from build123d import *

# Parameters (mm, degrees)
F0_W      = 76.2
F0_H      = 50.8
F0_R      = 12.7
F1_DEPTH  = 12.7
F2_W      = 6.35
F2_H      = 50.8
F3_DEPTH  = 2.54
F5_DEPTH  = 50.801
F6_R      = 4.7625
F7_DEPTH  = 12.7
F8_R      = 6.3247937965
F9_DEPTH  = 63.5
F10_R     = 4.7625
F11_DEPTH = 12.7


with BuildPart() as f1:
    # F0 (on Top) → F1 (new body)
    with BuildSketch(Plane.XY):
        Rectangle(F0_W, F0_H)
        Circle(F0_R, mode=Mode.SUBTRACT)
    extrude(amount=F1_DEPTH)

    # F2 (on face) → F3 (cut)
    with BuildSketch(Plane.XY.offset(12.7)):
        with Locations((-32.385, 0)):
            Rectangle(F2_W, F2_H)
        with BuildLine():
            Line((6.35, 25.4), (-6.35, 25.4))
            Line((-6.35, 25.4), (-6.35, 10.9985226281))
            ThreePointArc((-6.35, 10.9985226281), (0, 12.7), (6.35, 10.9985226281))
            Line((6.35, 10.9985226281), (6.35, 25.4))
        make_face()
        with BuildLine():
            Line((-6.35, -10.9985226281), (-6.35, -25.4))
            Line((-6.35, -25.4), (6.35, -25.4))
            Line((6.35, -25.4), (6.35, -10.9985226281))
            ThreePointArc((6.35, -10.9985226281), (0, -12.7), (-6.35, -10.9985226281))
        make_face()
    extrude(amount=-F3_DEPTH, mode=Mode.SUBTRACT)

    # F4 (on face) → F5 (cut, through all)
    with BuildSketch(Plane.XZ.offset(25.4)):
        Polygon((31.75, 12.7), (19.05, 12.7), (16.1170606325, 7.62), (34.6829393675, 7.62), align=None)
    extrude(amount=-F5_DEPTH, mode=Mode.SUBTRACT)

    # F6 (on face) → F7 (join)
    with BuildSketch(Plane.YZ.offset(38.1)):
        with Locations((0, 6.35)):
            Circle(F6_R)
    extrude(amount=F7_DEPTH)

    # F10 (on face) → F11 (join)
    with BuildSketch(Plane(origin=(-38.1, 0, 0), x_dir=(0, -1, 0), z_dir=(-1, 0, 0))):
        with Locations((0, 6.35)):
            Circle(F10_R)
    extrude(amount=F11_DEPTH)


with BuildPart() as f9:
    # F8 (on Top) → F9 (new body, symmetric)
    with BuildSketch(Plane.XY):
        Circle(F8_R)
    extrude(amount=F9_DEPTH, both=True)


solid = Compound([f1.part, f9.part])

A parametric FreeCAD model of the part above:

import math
import FreeCAD as App
import Part
import Sketcher
Q = App.Units.Quantity

doc = App.newDocument("Part")
body = doc.addObject("PartDesign::Body", "Body")

# Sketch on XY plane
sketch1 = doc.addObject("Sketcher::SketchObject", "Sketch")
body.addObject(sketch1)
sketch1.AttachmentSupport = (doc.XY_Plane, [""])
sketch1.MapMode = "FlatFace"
sketch1.addGeometry([
    Part.LineSegment(App.Vector(-38, 25, 0), App.Vector(-38, -25, 0)),  # 0
    Part.LineSegment(App.Vector(-38, -25, 0), App.Vector(38, -25, 0)),  # 1
    Part.LineSegment(App.Vector(38, -25, 0), App.Vector(38, 25, 0)),  # 2
    Part.LineSegment(App.Vector(38, 25, 0), App.Vector(-38, 25, 0)),  # 3
    Part.Circle(App.Vector(0, 0, 0), App.Vector(0, 0, 1), 13),  # 4
], False)
sketch1.addConstraint([
    Sketcher.Constraint("Coincident", 0, 2, 1, 1),
    Sketcher.Constraint("Coincident", 1, 2, 2, 1),
    Sketcher.Constraint("Coincident", 2, 2, 3, 1),
    Sketcher.Constraint("Coincident", 3, 2, 0, 1),
    Sketcher.Constraint("Vertical", 0),
    Sketcher.Constraint("Horizontal", 1),
    Sketcher.Constraint("Vertical", 2),
    Sketcher.Constraint("Horizontal", 3),
    Sketcher.Constraint("Coincident", 4, 3, -1, 1),
    Sketcher.Constraint("Symmetric", 0, 2, 2, 2, -1, 1),
    Sketcher.Constraint("Diameter", 4, Q("1 in")),
    Sketcher.Constraint("DistanceX", 1, 1, 1, 2, Q("3 in")),
    Sketcher.Constraint("DistanceY", 0, 2, 0, 1, Q("2 in")),
])
pad1 = doc.addObject("PartDesign::Pad", "Pad")
body.addObject(pad1)
pad1.Profile = sketch1
pad1.Length = Q("0.5 in")

# Sketch on XY plane
sketch2 = doc.addObject("Sketcher::SketchObject", "Sketch001")
body.addObject(sketch2)
sketch2.AttachmentSupport = (doc.XY_Plane, [""])
sketch2.MapMode = "FlatFace"
sketch2.AttachmentOffset = App.Placement(App.Vector(0, 0, 0.5 * 25.4), App.Rotation())
sketch2.addGeometry([
    Part.LineSegment(App.Vector(-36, 25, 0), App.Vector(-36, -25, 0)),  # 0
    Part.LineSegment(App.Vector(-36, -25, 0), App.Vector(-29, -25, 0)),  # 1
    Part.LineSegment(App.Vector(-29, -25, 0), App.Vector(-29, 25, 0)),  # 2
    Part.LineSegment(App.Vector(-29, 25, 0), App.Vector(-36, 25, 0)),  # 3
    Part.LineSegment(App.Vector(6, 25, 0), App.Vector(-6, 25, 0)),  # 4
    Part.LineSegment(App.Vector(-6, 25, 0), App.Vector(-6, 11, 0)),  # 5
    Part.ArcOfCircle(Part.Circle(App.Vector(0, 0, 0), App.Vector(0, 0, 1), 13), math.radians(60), math.radians(120)),  # 6
    Part.LineSegment(App.Vector(6, 11, 0), App.Vector(6, 25, 0)),  # 7
    Part.LineSegment(App.Vector(-6, -11, 0), App.Vector(-6, -25, 0)),  # 8
    Part.LineSegment(App.Vector(-6, -25, 0), App.Vector(6, -25, 0)),  # 9
    Part.LineSegment(App.Vector(6, -25, 0), App.Vector(6, -11, 0)),  # 10
    Part.ArcOfCircle(Part.Circle(App.Vector(0, 0, 0), App.Vector(0, 0, 1), 13), math.radians(-120), math.radians(-60)),  # 11
], False)
sketch2.addConstraint([
    Sketcher.Constraint("Coincident", 0, 2, 1, 1),
    Sketcher.Constraint("Coincident", 1, 2, 2, 1),
    Sketcher.Constraint("Coincident", 2, 2, 3, 1),
    Sketcher.Constraint("Coincident", 3, 2, 0, 1),
    Sketcher.Constraint("Coincident", 4, 2, 5, 1),
    Sketcher.Constraint("Coincident", 5, 2, 6, 2),
    Sketcher.Constraint("Coincident", 6, 1, 7, 1),
    Sketcher.Constraint("Coincident", 7, 2, 4, 1),
    Sketcher.Constraint("Coincident", 8, 2, 9, 1),
    Sketcher.Constraint("Coincident", 9, 2, 10, 1),
    Sketcher.Constraint("Coincident", 10, 2, 11, 2),
    Sketcher.Constraint("Coincident", 11, 1, 8, 1),
    Sketcher.Constraint("Vertical", 0),
    Sketcher.Constraint("Horizontal", 1),
    Sketcher.Constraint("Vertical", 2),
    Sketcher.Constraint("Horizontal", 3),
    Sketcher.Constraint("Horizontal", 4),
    Sketcher.Constraint("Vertical", 5),
    Sketcher.Constraint("Vertical", 7),
    Sketcher.Constraint("Vertical", 8),
    Sketcher.Constraint("Horizontal", 9),
    Sketcher.Constraint("Vertical", 10),
    Sketcher.Constraint("Coincident", 6, 3, -1, 1),
    Sketcher.Constraint("Coincident", 11, 3, -1, 1),
    Sketcher.Constraint("Equal", 6, 11),
    Sketcher.Constraint("Symmetric", 7, 2, 8, 2, -1, 1),
    Sketcher.Constraint("Horizontal", 3, 2, 4, 2),
    Sketcher.Constraint("Horizontal", 5, 2, 6, 1),
    Sketcher.Constraint("Horizontal", 1, 2, 8, 2),
    Sketcher.Constraint("Horizontal", 10, 2, 11, 1),
    Sketcher.Constraint("Radius", 6, Q("0.5 in")),
    Sketcher.Constraint("DistanceY", 0, 2, 0, 1, Q("2 in")),
    Sketcher.Constraint("DistanceX", 4, 2, 4, 1, Q("0.5 in")),
    Sketcher.Constraint("DistanceX", 1, 1, 1, 2, Q("0.25 in")),
    Sketcher.Constraint("DistanceX", 0, 2, -1, 1, Q("1.4 in")),
])
pocket1 = doc.addObject("PartDesign::Pocket", "Pocket")
body.addObject(pocket1)
pocket1.Profile = sketch2
pocket1.Length = Q("0.1 in")

# Sketch on XZ plane
sketch3 = doc.addObject("Sketcher::SketchObject", "Sketch002")
body.addObject(sketch3)
sketch3.AttachmentSupport = (doc.XZ_Plane, [""])
sketch3.MapMode = "FlatFace"
sketch3.AttachmentOffset = App.Placement(App.Vector(0, 0, 1 * 25.4), App.Rotation())
sketch3.addGeometry([
    Part.LineSegment(App.Vector(32, 13, 0), App.Vector(19, 13, 0)),
    Part.LineSegment(App.Vector(19, 13, 0), App.Vector(16, 8, 0)),
    Part.LineSegment(App.Vector(16, 8, 0), App.Vector(35, 8, 0)),
    Part.LineSegment(App.Vector(35, 8, 0), App.Vector(32, 13, 0)),
], False)
sketch3.addConstraint([
    Sketcher.Constraint("Coincident", 0, 2, 1, 1),
    Sketcher.Constraint("Coincident", 1, 2, 2, 1),
    Sketcher.Constraint("Coincident", 2, 2, 3, 1),
    Sketcher.Constraint("Coincident", 3, 2, 0, 1),
    Sketcher.Constraint("Horizontal", 0),
    Sketcher.Constraint("Horizontal", 2),
    Sketcher.Constraint("Equal", 1, 3),
    Sketcher.Constraint("DistanceX", 0, 2, 0, 1, Q("0.5 in")),
    Sketcher.Constraint("Angle", 1, Q("-120 deg")),
    Sketcher.Constraint("DistanceY", -1, 1, 0, 2, Q("0.5 in")),
    Sketcher.Constraint("DistanceY", -1, 1, 1, 2, Q("0.3 in")),
    Sketcher.Constraint("DistanceX", -1, 1, 0, 2, Q("0.75 in")),
])
pocket2 = doc.addObject("PartDesign::Pocket", "Pocket001")
body.addObject(pocket2)
pocket2.Profile = sketch3
pocket2.Type = "ThroughAll"

# Sketch on YZ plane
sketch4 = doc.addObject("Sketcher::SketchObject", "Sketch003")
body.addObject(sketch4)
sketch4.AttachmentSupport = (doc.YZ_Plane, [""])
sketch4.MapMode = "FlatFace"
sketch4.AttachmentOffset = App.Placement(App.Vector(0, 0, 1.5 * 25.4), App.Rotation())
sketch4.addGeometry(Part.Circle(App.Vector(0, 6.3, 0), App.Vector(0, 0, 1), 4.8), False)
sketch4.addConstraint([
    Sketcher.Constraint("PointOnObject", 0, 3, -2),
    Sketcher.Constraint("Diameter", 0, Q("0.375 in")),
    Sketcher.Constraint("DistanceY", -1, 1, 0, 3, Q("0.25 in")),
])
pad2 = doc.addObject("PartDesign::Pad", "Pad001")
body.addObject(pad2)
pad2.Profile = sketch4
pad2.Length = Q("0.5 in")

# Sketch on YZ plane
sketch5 = doc.addObject("Sketcher::SketchObject", "Sketch004")
body.addObject(sketch5)
sketch5.AttachmentSupport = (doc.YZ_Plane, [""])
sketch5.MapMode = "FlatFace"
sketch5.AttachmentOffset = App.Placement(App.Vector(0, 0, -1.5 * 25.4), App.Rotation())
sketch5.addGeometry(Part.Circle(App.Vector(0, 6.3, 0), App.Vector(0, 0, 1), 4.8), False)
sketch5.addConstraint([
    Sketcher.Constraint("PointOnObject", 0, 3, -2),
    Sketcher.Constraint("Diameter", 0, Q("0.375 in")),
    Sketcher.Constraint("DistanceY", -1, 1, 0, 3, Q("0.25 in")),
])
pad3 = doc.addObject("PartDesign::Pad", "Pad002")
body.addObject(pad3)
pad3.Profile = sketch5
pad3.Length = Q("0.5 in")
pad3.Reversed = True
body2 = doc.addObject("PartDesign::Body", "Body001")

# Sketch on XY plane
sketch6 = doc.addObject("Sketcher::SketchObject", "Sketch005")
body2.addObject(sketch6)
sketch6.AttachmentSupport = (doc.getObject("XY_Plane001"), [""])
sketch6.MapMode = "FlatFace"
sketch6.addGeometry(Part.Circle(App.Vector(0, 0, 0), App.Vector(0, 0, 1), 6), False)
sketch6.addConstraint([
    Sketcher.Constraint("Coincident", 0, 3, -1, 1),
    Sketcher.Constraint("Diameter", 0, Q("12.649588 mm")),
])
pad4 = doc.addObject("PartDesign::Pad", "Pad003")
body2.addObject(pad4)
pad4.Profile = sketch6
pad4.Length = Q("5 in")
pad4.Midplane = True

doc.recompute()
